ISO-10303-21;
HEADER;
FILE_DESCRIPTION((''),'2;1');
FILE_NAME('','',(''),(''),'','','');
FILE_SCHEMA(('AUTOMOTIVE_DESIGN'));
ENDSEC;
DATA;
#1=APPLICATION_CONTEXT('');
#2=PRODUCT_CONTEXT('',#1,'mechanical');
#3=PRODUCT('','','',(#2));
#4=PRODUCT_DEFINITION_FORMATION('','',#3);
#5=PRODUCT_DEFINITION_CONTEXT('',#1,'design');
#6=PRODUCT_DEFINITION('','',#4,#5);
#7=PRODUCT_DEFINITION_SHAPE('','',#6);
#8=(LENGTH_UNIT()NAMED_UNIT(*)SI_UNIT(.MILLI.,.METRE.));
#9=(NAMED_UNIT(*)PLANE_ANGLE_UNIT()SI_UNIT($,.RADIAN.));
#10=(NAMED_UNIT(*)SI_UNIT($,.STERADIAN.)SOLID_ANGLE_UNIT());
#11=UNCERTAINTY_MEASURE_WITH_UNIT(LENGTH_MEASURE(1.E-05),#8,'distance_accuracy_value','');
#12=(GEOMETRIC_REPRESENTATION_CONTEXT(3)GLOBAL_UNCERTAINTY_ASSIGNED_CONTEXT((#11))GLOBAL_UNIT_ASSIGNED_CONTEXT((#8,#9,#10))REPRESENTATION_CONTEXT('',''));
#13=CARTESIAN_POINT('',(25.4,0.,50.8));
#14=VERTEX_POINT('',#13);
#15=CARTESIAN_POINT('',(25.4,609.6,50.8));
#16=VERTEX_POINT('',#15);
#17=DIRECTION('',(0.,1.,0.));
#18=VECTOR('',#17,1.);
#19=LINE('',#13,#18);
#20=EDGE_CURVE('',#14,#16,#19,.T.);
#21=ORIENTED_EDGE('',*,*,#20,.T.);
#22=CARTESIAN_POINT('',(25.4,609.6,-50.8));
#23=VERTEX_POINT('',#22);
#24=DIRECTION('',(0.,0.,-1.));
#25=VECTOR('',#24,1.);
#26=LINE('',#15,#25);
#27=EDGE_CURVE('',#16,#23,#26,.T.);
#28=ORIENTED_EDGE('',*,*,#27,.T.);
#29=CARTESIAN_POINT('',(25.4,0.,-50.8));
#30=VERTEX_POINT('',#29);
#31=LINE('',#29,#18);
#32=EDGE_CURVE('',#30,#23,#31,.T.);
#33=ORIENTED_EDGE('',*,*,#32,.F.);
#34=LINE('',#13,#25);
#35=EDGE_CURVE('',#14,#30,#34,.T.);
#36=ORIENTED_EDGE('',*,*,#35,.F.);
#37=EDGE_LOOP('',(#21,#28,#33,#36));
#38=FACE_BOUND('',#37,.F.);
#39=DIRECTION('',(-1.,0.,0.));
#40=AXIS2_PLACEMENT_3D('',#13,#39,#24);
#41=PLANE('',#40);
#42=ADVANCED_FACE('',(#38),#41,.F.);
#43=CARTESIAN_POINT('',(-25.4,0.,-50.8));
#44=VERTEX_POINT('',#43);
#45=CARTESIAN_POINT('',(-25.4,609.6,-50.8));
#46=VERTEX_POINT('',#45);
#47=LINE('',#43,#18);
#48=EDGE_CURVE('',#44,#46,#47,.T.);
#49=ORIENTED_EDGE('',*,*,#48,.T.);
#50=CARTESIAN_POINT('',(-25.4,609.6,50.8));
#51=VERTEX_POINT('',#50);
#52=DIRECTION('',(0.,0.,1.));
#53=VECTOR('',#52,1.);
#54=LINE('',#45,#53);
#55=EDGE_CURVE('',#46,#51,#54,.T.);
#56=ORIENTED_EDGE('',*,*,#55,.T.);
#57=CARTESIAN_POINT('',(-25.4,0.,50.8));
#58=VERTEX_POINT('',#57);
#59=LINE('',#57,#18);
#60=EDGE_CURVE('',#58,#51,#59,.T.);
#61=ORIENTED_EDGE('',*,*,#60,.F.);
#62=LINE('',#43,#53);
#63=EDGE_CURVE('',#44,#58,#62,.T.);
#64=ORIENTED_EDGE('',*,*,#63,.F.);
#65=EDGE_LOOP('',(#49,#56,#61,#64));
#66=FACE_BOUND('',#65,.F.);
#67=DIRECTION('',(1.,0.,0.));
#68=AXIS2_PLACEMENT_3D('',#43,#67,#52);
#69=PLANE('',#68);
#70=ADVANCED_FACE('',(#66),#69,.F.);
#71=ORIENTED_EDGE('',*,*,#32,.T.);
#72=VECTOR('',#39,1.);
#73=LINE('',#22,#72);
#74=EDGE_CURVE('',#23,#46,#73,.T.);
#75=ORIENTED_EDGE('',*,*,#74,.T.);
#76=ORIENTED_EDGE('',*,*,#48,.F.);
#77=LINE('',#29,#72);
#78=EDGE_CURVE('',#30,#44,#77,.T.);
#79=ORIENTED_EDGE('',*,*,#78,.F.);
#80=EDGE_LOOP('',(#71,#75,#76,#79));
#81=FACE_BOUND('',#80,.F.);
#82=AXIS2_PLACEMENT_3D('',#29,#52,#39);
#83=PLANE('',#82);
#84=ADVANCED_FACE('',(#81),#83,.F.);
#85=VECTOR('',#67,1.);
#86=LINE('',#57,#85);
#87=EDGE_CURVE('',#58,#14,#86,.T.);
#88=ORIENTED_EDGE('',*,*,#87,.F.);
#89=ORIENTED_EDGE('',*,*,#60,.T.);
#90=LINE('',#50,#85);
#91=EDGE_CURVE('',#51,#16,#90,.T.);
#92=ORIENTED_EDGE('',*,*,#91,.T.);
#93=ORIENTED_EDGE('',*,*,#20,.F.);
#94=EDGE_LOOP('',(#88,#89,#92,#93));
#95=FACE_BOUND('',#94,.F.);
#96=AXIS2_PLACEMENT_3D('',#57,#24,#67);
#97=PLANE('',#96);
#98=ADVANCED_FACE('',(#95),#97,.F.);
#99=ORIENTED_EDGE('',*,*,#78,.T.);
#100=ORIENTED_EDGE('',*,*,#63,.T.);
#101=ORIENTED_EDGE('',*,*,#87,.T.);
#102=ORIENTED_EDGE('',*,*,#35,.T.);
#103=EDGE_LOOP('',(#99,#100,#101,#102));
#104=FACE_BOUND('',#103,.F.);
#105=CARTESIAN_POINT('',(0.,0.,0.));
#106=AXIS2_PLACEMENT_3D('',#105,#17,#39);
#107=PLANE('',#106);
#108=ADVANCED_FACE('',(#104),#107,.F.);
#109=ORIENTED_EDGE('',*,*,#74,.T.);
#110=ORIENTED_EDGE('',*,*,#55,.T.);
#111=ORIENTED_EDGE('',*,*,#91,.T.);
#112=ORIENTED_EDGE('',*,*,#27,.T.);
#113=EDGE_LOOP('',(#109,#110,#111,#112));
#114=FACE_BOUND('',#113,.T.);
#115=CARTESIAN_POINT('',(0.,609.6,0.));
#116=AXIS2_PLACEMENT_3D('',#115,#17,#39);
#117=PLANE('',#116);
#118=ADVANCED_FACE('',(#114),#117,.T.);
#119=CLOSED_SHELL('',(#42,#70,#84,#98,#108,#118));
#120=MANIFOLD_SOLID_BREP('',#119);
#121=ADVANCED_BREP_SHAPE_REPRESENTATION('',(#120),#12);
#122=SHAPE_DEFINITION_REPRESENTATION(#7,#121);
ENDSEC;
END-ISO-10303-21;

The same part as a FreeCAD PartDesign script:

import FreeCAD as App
import Part
import Sketcher

V = App.Vector
Q = App.Units.Quantity


def add_polygon(sketch, points):
    """Adds a closed chain of lines whose ends are joined by coincident constraints."""
    first, n = sketch.GeometryCount, len(points)
    for a, b in zip(points, points[1:] + points[:1]):
        sketch.addGeometry(Part.LineSegment(App.Vector(*a, 0), App.Vector(*b, 0)), False)
    for i in range(n):
        sketch.addConstraint(Sketcher.Constraint("Coincident", first + i, 2, first + (i + 1) % n, 1))

doc = App.newDocument("Part")
params = doc.addObject("Spreadsheet::Sheet", "Params")
for row, (alias, value) in enumerate([
    ("sketch1_width", "2 in"),
    ("sketch1_height", "4 in"),
    ("pad1_length", "24 in"),
], start=1):
    params.set(f"A{row}", alias)
    params.set(f"B{row}", "=" + value)
    params.setAlias(f"B{row}", alias)

body = doc.addObject("PartDesign::Body", "Body")

# Sketch on XZ plane
sketch1 = body.newObject("Sketcher::SketchObject", "Sketch")
sketch1.AttachmentSupport = (doc.getObject("XZ_Plane"), [""])
sketch1.MapMode = "FlatFace"
add_polygon(sketch1, [(25, 51), (25, -51), (-25, -51), (-25, 51)])  # lines 0-3
sketch1.addConstraint(Sketcher.Constraint("Vertical", 0))
sketch1.addConstraint(Sketcher.Constraint("Horizontal", 1))
sketch1.addConstraint(Sketcher.Constraint("Vertical", 2))
sketch1.addConstraint(Sketcher.Constraint("Horizontal", 3))
sketch1.addConstraint(Sketcher.Constraint("Symmetric", 0, 2, 2, 2, -1, 1))
sketch1.addConstraint(Sketcher.Constraint("DistanceX", 1, 2, 1, 1, Q("2 in")))
sketch1.addConstraint(Sketcher.Constraint("DistanceY", 0, 2, 0, 1, Q("4 in")))
sketch1.setExpression("Constraints[9]", "Params.sketch1_width")
sketch1.setExpression("Constraints[10]", "Params.sketch1_height")
pad1 = body.newObject("PartDesign::Pad", "Pad")
pad1.Profile = sketch1
pad1.setExpression("Length", "Params.pad1_length")
pad1.Reversed = True

doc.recompute()
